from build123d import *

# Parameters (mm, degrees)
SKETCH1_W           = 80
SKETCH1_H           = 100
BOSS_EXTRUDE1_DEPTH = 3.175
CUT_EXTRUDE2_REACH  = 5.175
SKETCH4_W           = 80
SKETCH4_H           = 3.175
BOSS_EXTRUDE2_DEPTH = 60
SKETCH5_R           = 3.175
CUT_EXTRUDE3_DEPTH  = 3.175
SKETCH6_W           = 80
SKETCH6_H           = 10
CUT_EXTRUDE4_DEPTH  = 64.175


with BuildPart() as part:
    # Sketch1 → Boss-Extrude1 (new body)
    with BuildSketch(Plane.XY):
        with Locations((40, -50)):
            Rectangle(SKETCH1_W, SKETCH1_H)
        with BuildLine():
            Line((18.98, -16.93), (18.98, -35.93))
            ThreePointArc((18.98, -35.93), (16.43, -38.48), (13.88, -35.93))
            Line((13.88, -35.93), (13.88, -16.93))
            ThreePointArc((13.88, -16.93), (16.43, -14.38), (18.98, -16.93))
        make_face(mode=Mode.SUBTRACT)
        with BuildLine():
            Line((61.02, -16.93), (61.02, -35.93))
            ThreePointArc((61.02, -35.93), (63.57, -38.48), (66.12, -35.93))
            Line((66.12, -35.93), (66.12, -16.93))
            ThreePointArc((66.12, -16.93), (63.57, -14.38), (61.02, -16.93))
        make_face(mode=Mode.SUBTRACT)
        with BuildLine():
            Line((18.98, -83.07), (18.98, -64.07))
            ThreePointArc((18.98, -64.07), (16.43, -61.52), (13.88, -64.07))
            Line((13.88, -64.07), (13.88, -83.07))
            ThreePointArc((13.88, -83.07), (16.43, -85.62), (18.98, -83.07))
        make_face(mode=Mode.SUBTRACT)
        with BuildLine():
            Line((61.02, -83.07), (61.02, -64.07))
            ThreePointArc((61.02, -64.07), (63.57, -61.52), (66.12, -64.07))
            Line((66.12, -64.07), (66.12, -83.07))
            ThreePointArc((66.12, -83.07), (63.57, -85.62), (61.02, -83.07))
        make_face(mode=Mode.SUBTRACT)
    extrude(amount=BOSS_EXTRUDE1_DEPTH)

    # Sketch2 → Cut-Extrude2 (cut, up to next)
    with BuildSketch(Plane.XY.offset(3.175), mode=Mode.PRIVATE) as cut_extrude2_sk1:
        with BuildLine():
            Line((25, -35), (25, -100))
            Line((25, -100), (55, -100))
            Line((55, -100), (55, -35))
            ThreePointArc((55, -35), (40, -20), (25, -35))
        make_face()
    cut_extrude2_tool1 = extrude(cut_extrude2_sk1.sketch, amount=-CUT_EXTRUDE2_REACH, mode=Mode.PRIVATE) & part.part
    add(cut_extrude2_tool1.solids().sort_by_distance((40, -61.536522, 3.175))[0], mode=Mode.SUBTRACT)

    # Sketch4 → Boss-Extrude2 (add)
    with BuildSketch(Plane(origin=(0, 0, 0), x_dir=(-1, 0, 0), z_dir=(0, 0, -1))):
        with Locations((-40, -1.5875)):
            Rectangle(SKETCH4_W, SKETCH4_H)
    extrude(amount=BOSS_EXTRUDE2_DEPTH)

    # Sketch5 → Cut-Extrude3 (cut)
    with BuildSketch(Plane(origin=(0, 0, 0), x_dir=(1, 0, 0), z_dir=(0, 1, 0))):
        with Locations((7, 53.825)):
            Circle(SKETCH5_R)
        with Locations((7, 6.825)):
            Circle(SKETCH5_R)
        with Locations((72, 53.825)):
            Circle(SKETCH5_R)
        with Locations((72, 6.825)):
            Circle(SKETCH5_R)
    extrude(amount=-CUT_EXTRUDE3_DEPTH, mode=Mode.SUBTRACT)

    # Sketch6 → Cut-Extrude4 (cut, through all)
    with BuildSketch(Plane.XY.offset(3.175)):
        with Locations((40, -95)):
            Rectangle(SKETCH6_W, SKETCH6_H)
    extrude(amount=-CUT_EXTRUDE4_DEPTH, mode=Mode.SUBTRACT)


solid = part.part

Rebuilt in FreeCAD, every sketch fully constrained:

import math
import FreeCAD as App
import Part
import Sketcher
Q = App.Units.Quantity

doc = App.newDocument("Part")
body = doc.addObject("PartDesign::Body", "Body")

# Sketch on XY plane
sketch1 = body.newObject("Sketcher::SketchObject", "Sketch")
sketch1.AttachmentSupport = (doc.getObject("XY_Plane"), [""])
sketch1.MapMode = "FlatFace"
sketch1.addGeometry([
    Part.LineSegment(App.Vector(0, 0, 0), App.Vector(0, -100, 0)),  # 0
    Part.LineSegment(App.Vector(0, -100, 0), App.Vector(80, -100, 0)),  # 1
    Part.LineSegment(App.Vector(80, -100, 0), App.Vector(80, 0, 0)),  # 2
    Part.LineSegment(App.Vector(80, 0, 0), App.Vector(0, 0, 0)),  # 3
    Part.LineSegment(App.Vector(19, -64.1, 0), App.Vector(19, -83.1, 0)),  # 4
    Part.ArcOfCircle(Part.Circle(App.Vector(16.4, -83.1, 0), App.Vector(0, 0, 1), 2.5), math.radians(180), math.radians(360)),  # 5
    Part.LineSegment(App.Vector(13.9, -83.1, 0), App.Vector(13.9, -64.1, 0)),  # 6
    Part.ArcOfCircle(Part.Circle(App.Vector(16.4, -64.1, 0), App.Vector(0, 0, 1), 2.5), math.radians(0), math.radians(180)),  # 7
    Part.ArcOfCircle(Part.Circle(App.Vector(63.6, -83.1, 0), App.Vector(0, 0, 1), 2.5), math.radians(180), math.radians(360)),  # 8
    Part.LineSegment(App.Vector(61, -83.1, 0), App.Vector(61, -64.1, 0)),  # 9
    Part.ArcOfCircle(Part.Circle(App.Vector(63.6, -64.1, 0), App.Vector(0, 0, 1), 2.5), math.radians(0), math.radians(180)),  # 10
    Part.LineSegment(App.Vector(66.1, -64.1, 0), App.Vector(66.1, -83.1, 0)),  # 11
    Part.ArcOfCircle(Part.Circle(App.Vector(16.4, -16.9, 0), App.Vector(0, 0, 1), 2.5), math.radians(0), math.radians(180)),  # 12
    Part.LineSegment(App.Vector(19, -16.9, 0), App.Vector(19, -35.9, 0)),  # 13
    Part.ArcOfCircle(Part.Circle(App.Vector(16.4, -35.9, 0), App.Vector(0, 0, 1), 2.5), math.radians(180), math.radians(360)),  # 14
    Part.LineSegment(App.Vector(13.9, -35.9, 0), App.Vector(13.9, -16.9, 0)),  # 15
    Part.LineSegment(App.Vector(61, -35.9, 0), App.Vector(61, -16.9, 0)),  # 16
    Part.ArcOfCircle(Part.Circle(App.Vector(63.6, -16.9, 0), App.Vector(0, 0, 1), 2.5), math.radians(0), math.radians(180)),  # 17
    Part.LineSegment(App.Vector(66.1, -16.9, 0), App.Vector(66.1, -35.9, 0)),  # 18
    Part.ArcOfCircle(Part.Circle(App.Vector(63.6, -35.9, 0), App.Vector(0, 0, 1), 2.5), math.radians(180), math.radians(360)),  # 19
], False)
sketch1.addConstraint([
    Sketcher.Constraint("Coincident", 0, 2, 1, 1),
    Sketcher.Constraint("Coincident", 1, 2, 2, 1),
    Sketcher.Constraint("Coincident", 2, 2, 3, 1),
    Sketcher.Constraint("Coincident", 3, 2, 0, 1),
    Sketcher.Constraint("Tangent", 4, 2, 5, 2),
    Sketcher.Constraint("Tangent", 5, 1, 6, 1),
    Sketcher.Constraint("Tangent", 6, 2, 7, 2),
    Sketcher.Constraint("Tangent", 7, 1, 4, 1),
    Sketcher.Constraint("Tangent", 8, 1, 9, 1),
    Sketcher.Constraint("Tangent", 9, 2, 10, 2),
    Sketcher.Constraint("Tangent", 10, 1, 11, 1),
    Sketcher.Constraint("Tangent", 11, 2, 8, 2),
    Sketcher.Constraint("Tangent", 12, 1, 13, 1),
    Sketcher.Constraint("Tangent", 13, 2, 14, 2),
    Sketcher.Constraint("Tangent", 14, 1, 15, 1),
    Sketcher.Constraint("Tangent", 15, 2, 12, 2),
    Sketcher.Constraint("Tangent", 16, 2, 17, 2),
    Sketcher.Constraint("Tangent", 17, 1, 18, 1),
    Sketcher.Constraint("Tangent", 18, 2, 19, 2),
    Sketcher.Constraint("Tangent", 19, 1, 16, 1),
    Sketcher.Constraint("Vertical", 0),
    Sketcher.Constraint("Horizontal", 1),
    Sketcher.Constraint("Vertical", 2),
    Sketcher.Constraint("Horizontal", 3),
    Sketcher.Constraint("Vertical", 4),
    Sketcher.Constraint("Vertical", 6),
    Sketcher.Constraint("Vertical", 9),
    Sketcher.Constraint("Vertical", 11),
    Sketcher.Constraint("Vertical", 13),
    Sketcher.Constraint("Vertical", 15),
    Sketcher.Constraint("Vertical", 16),
    Sketcher.Constraint("Vertical", 18),
    Sketcher.Constraint("Coincident", 3, 2, -1, 1),
    Sketcher.Constraint("Equal", 7, 8),
    Sketcher.Constraint("Equal", 10, 12),
    Sketcher.Constraint("Equal", 14, 17),
    Sketcher.Constraint("Horizontal", 5, 3, 8, 3),
    Sketcher.Constraint("Horizontal", 7, 3, 10, 3),
    Sketcher.Constraint("Horizontal", 12, 3, 17, 3),
    Sketcher.Constraint("Horizontal", 14, 3, 19, 3),
    Sketcher.Constraint("Vertical", 7, 3, 12, 3),
    Sketcher.Constraint("Vertical", 10, 3, 17, 3),
    Sketcher.Constraint("Equal", 11, 13),
    Sketcher.Constraint("DistanceX", 1, 1, 1, 2, Q("80 mm")),
    Sketcher.Constraint("DistanceY", 0, 2, 0, 1, Q("100 mm")),
    Sketcher.Constraint("DistanceY", 4, 2, 4, 1, Q("19 mm")),
    Sketcher.Constraint("Radius", 5, Q("2.55 mm")),
    Sketcher.Constraint("DistanceX", -1, 1, 5, 3, Q("16.43 mm")),
    Sketcher.Constraint("DistanceY", 5, 3, -1, 1, Q("83.07 mm")),
    Sketcher.Constraint("DistanceX", -1, 1, 8, 3, Q("63.57 mm")),
    Sketcher.Constraint("DistanceY", 12, 3, -1, 1, Q("16.93 mm")),
])
pad1 = body.newObject("PartDesign::Pad", "Pad")
pad1.Profile = sketch1
pad1.Length = 3.175

# Sketch on XY plane
sketch2 = body.newObject("Sketcher::SketchObject", "Sketch001")
sketch2.AttachmentSupport = (doc.getObject("XY_Plane"), [""])
sketch2.MapMode = "FlatFace"
sketch2.AttachmentOffset = App.Placement(App.Vector(0, 0, 3.175), App.Rotation())
sketch2.addGeometry([
    Part.LineSegment(App.Vector(25, -35, 0), App.Vector(25, -100, 0)),
    Part.LineSegment(App.Vector(25, -100, 0), App.Vector(55, -100, 0)),
    Part.LineSegment(App.Vector(55, -100, 0), App.Vector(55, -35, 0)),
    Part.ArcOfCircle(Part.Circle(App.Vector(40, -35, 0), App.Vector(0, 0, 1), 15), math.radians(0), math.radians(180)),
], False)
sketch2.addConstraint([
    Sketcher.Constraint("Coincident", 0, 2, 1, 1),
    Sketcher.Constraint("Coincident", 1, 2, 2, 1),
    Sketcher.Constraint("Tangent", 2, 2, 3, 1),
    Sketcher.Constraint("Tangent", 3, 2, 0, 1),
    Sketcher.Constraint("Vertical", 0),
    Sketcher.Constraint("Horizontal", 1),
    Sketcher.Constraint("Vertical", 2),
    Sketcher.Constraint("Radius", 3, Q("15 mm")),
    Sketcher.Constraint("DistanceY", 0, 2, 0, 1, Q("65 mm")),
    Sketcher.Constraint("DistanceX", -1, 1, 3, 3, Q("40 mm")),
    Sketcher.Constraint("DistanceY", 3, 3, -1, 1, Q("35 mm")),
])
pocket1 = body.newObject("PartDesign::Pocket", "Pocket")
pocket1.Profile = sketch2
pocket1.Type = "UpToFirst"

# Sketch on XY plane
sketch3 = body.newObject("Sketcher::SketchObject", "Sketch002")
sketch3.AttachmentSupport = (doc.getObject("XY_Plane"), [""])
sketch3.MapMode = "FlatFace"
sketch3.addGeometry([
    Part.LineSegment(App.Vector(80, 0, 0), App.Vector(80, -3.2, 0)),
    Part.LineSegment(App.Vector(80, -3.2, 0), App.Vector(0, -3.2, 0)),
    Part.LineSegment(App.Vector(0, -3.2, 0), App.Vector(0, 0, 0)),
    Part.LineSegment(App.Vector(0, 0, 0), App.Vector(80, 0, 0)),
], False)
sketch3.addConstraint([
    Sketcher.Constraint("Coincident", 0, 2, 1, 1),
    Sketcher.Constraint("Coincident", 1, 2, 2, 1),
    Sketcher.Constraint("Coincident", 2, 2, 3, 1),
    Sketcher.Constraint("Coincident", 3, 2, 0, 1),
    Sketcher.Constraint("Vertical", 0),
    Sketcher.Constraint("Horizontal", 1),
    Sketcher.Constraint("Vertical", 2),
    Sketcher.Constraint("Horizontal", 3),
    Sketcher.Constraint("Coincident", 2, 2, -1, 1),
    Sketcher.Constraint("DistanceX", 1, 2, 1, 1, Q("80 mm")),
    Sketcher.Constraint("DistanceY", 0, 2, 0, 1, Q("3.175 mm")),
])
pad2 = body.newObject("PartDesign::Pad", "Pad001")
pad2.Profile = sketch3
pad2.Length = 60
pad2.Reversed = True

# Sketch on XZ plane
sketch4 = body.newObject("Sketcher::SketchObject", "Sketch003")
sketch4.AttachmentSupport = (doc.getObject("XZ_Plane"), [""])
sketch4.MapMode = "FlatFace"
sketch4.addGeometry([
    Part.Circle(App.Vector(7, -53.8, 0), App.Vector(0, 0, 1), 3.2),
    Part.Circle(App.Vector(7, -6.8, 0), App.Vector(0, 0, 1), 3.2),
    Part.Circle(App.Vector(72, -53.8, 0), App.Vector(0, 0, 1), 3.2),
    Part.Circle(App.Vector(72, -6.8, 0), App.Vector(0, 0, 1), 3.2),
], False)
sketch4.addConstraint([
    Sketcher.Constraint("Equal", 0, 1),
    Sketcher.Constraint("Equal", 1, 2),
    Sketcher.Constraint("Equal", 2, 3),
    Sketcher.Constraint("Horizontal", 0, 3, 2, 3),
    Sketcher.Constraint("Horizontal", 1, 3, 3, 3),
    Sketcher.Constraint("Vertical", 0, 3, 1, 3),
    Sketcher.Constraint("Vertical", 2, 3, 3, 3),
    Sketcher.Constraint("Diameter", 0, Q("6.35 mm")),
    Sketcher.Constraint("DistanceX", -1, 1, 0, 3, Q("7 mm")),
    Sketcher.Constraint("DistanceX", -1, 1, 2, 3, Q("72 mm")),
    Sketcher.Constraint("DistanceY", 0, 3, 1, 3, Q("47 mm")),
    Sketcher.Constraint("DistanceY", 0, 3, -1, 1, Q("53.825 mm")),
])
pocket2 = body.newObject("PartDesign::Pocket", "Pocket001")
pocket2.Profile = sketch4
pocket2.Length = 3.175
pocket2.Reversed = True

# Sketch on XY plane
sketch5 = body.newObject("Sketcher::SketchObject", "Sketch004")
sketch5.AttachmentSupport = (doc.getObject("XY_Plane"), [""])
sketch5.MapMode = "FlatFace"
sketch5.AttachmentOffset = App.Placement(App.Vector(0, 0, 3.175), App.Rotation())
sketch5.addGeometry([
    Part.LineSegment(App.Vector(0, -90, 0), App.Vector(0, -100, 0)),
    Part.LineSegment(App.Vector(0, -100, 0), App.Vector(80, -100, 0)),
    Part.LineSegment(App.Vector(80, -100, 0), App.Vector(80, -90, 0)),
    Part.LineSegment(App.Vector(80, -90, 0), App.Vector(0, -90, 0)),
], False)
sketch5.addConstraint([
    Sketcher.Constraint("Coincident", 0, 2, 1, 1),
    Sketcher.Constraint("Coincident", 1, 2, 2, 1),
    Sketcher.Constraint("Coincident", 2, 2, 3, 1),
    Sketcher.Constraint("Coincident", 3, 2, 0, 1),
    Sketcher.Constraint("Vertical", 0),
    Sketcher.Constraint("Horizontal", 1),
    Sketcher.Constraint("Vertical", 2),
    Sketcher.Constraint("Horizontal", 3),
    Sketcher.Constraint("PointOnObject", 0, 2, -2),
    Sketcher.Constraint("DistanceX", 1, 1, 1, 2, Q("80 mm")),
    Sketcher.Constraint("DistanceY", 0, 2, 0, 1, Q("10 mm")),
    Sketcher.Constraint("DistanceY", 0, 2, -1, 1, Q("100 mm")),
])
pocket3 = body.newObject("PartDesign::Pocket", "Pocket002")
pocket3.Profile = sketch5
pocket3.Type = "ThroughAll"

doc.recompute()
